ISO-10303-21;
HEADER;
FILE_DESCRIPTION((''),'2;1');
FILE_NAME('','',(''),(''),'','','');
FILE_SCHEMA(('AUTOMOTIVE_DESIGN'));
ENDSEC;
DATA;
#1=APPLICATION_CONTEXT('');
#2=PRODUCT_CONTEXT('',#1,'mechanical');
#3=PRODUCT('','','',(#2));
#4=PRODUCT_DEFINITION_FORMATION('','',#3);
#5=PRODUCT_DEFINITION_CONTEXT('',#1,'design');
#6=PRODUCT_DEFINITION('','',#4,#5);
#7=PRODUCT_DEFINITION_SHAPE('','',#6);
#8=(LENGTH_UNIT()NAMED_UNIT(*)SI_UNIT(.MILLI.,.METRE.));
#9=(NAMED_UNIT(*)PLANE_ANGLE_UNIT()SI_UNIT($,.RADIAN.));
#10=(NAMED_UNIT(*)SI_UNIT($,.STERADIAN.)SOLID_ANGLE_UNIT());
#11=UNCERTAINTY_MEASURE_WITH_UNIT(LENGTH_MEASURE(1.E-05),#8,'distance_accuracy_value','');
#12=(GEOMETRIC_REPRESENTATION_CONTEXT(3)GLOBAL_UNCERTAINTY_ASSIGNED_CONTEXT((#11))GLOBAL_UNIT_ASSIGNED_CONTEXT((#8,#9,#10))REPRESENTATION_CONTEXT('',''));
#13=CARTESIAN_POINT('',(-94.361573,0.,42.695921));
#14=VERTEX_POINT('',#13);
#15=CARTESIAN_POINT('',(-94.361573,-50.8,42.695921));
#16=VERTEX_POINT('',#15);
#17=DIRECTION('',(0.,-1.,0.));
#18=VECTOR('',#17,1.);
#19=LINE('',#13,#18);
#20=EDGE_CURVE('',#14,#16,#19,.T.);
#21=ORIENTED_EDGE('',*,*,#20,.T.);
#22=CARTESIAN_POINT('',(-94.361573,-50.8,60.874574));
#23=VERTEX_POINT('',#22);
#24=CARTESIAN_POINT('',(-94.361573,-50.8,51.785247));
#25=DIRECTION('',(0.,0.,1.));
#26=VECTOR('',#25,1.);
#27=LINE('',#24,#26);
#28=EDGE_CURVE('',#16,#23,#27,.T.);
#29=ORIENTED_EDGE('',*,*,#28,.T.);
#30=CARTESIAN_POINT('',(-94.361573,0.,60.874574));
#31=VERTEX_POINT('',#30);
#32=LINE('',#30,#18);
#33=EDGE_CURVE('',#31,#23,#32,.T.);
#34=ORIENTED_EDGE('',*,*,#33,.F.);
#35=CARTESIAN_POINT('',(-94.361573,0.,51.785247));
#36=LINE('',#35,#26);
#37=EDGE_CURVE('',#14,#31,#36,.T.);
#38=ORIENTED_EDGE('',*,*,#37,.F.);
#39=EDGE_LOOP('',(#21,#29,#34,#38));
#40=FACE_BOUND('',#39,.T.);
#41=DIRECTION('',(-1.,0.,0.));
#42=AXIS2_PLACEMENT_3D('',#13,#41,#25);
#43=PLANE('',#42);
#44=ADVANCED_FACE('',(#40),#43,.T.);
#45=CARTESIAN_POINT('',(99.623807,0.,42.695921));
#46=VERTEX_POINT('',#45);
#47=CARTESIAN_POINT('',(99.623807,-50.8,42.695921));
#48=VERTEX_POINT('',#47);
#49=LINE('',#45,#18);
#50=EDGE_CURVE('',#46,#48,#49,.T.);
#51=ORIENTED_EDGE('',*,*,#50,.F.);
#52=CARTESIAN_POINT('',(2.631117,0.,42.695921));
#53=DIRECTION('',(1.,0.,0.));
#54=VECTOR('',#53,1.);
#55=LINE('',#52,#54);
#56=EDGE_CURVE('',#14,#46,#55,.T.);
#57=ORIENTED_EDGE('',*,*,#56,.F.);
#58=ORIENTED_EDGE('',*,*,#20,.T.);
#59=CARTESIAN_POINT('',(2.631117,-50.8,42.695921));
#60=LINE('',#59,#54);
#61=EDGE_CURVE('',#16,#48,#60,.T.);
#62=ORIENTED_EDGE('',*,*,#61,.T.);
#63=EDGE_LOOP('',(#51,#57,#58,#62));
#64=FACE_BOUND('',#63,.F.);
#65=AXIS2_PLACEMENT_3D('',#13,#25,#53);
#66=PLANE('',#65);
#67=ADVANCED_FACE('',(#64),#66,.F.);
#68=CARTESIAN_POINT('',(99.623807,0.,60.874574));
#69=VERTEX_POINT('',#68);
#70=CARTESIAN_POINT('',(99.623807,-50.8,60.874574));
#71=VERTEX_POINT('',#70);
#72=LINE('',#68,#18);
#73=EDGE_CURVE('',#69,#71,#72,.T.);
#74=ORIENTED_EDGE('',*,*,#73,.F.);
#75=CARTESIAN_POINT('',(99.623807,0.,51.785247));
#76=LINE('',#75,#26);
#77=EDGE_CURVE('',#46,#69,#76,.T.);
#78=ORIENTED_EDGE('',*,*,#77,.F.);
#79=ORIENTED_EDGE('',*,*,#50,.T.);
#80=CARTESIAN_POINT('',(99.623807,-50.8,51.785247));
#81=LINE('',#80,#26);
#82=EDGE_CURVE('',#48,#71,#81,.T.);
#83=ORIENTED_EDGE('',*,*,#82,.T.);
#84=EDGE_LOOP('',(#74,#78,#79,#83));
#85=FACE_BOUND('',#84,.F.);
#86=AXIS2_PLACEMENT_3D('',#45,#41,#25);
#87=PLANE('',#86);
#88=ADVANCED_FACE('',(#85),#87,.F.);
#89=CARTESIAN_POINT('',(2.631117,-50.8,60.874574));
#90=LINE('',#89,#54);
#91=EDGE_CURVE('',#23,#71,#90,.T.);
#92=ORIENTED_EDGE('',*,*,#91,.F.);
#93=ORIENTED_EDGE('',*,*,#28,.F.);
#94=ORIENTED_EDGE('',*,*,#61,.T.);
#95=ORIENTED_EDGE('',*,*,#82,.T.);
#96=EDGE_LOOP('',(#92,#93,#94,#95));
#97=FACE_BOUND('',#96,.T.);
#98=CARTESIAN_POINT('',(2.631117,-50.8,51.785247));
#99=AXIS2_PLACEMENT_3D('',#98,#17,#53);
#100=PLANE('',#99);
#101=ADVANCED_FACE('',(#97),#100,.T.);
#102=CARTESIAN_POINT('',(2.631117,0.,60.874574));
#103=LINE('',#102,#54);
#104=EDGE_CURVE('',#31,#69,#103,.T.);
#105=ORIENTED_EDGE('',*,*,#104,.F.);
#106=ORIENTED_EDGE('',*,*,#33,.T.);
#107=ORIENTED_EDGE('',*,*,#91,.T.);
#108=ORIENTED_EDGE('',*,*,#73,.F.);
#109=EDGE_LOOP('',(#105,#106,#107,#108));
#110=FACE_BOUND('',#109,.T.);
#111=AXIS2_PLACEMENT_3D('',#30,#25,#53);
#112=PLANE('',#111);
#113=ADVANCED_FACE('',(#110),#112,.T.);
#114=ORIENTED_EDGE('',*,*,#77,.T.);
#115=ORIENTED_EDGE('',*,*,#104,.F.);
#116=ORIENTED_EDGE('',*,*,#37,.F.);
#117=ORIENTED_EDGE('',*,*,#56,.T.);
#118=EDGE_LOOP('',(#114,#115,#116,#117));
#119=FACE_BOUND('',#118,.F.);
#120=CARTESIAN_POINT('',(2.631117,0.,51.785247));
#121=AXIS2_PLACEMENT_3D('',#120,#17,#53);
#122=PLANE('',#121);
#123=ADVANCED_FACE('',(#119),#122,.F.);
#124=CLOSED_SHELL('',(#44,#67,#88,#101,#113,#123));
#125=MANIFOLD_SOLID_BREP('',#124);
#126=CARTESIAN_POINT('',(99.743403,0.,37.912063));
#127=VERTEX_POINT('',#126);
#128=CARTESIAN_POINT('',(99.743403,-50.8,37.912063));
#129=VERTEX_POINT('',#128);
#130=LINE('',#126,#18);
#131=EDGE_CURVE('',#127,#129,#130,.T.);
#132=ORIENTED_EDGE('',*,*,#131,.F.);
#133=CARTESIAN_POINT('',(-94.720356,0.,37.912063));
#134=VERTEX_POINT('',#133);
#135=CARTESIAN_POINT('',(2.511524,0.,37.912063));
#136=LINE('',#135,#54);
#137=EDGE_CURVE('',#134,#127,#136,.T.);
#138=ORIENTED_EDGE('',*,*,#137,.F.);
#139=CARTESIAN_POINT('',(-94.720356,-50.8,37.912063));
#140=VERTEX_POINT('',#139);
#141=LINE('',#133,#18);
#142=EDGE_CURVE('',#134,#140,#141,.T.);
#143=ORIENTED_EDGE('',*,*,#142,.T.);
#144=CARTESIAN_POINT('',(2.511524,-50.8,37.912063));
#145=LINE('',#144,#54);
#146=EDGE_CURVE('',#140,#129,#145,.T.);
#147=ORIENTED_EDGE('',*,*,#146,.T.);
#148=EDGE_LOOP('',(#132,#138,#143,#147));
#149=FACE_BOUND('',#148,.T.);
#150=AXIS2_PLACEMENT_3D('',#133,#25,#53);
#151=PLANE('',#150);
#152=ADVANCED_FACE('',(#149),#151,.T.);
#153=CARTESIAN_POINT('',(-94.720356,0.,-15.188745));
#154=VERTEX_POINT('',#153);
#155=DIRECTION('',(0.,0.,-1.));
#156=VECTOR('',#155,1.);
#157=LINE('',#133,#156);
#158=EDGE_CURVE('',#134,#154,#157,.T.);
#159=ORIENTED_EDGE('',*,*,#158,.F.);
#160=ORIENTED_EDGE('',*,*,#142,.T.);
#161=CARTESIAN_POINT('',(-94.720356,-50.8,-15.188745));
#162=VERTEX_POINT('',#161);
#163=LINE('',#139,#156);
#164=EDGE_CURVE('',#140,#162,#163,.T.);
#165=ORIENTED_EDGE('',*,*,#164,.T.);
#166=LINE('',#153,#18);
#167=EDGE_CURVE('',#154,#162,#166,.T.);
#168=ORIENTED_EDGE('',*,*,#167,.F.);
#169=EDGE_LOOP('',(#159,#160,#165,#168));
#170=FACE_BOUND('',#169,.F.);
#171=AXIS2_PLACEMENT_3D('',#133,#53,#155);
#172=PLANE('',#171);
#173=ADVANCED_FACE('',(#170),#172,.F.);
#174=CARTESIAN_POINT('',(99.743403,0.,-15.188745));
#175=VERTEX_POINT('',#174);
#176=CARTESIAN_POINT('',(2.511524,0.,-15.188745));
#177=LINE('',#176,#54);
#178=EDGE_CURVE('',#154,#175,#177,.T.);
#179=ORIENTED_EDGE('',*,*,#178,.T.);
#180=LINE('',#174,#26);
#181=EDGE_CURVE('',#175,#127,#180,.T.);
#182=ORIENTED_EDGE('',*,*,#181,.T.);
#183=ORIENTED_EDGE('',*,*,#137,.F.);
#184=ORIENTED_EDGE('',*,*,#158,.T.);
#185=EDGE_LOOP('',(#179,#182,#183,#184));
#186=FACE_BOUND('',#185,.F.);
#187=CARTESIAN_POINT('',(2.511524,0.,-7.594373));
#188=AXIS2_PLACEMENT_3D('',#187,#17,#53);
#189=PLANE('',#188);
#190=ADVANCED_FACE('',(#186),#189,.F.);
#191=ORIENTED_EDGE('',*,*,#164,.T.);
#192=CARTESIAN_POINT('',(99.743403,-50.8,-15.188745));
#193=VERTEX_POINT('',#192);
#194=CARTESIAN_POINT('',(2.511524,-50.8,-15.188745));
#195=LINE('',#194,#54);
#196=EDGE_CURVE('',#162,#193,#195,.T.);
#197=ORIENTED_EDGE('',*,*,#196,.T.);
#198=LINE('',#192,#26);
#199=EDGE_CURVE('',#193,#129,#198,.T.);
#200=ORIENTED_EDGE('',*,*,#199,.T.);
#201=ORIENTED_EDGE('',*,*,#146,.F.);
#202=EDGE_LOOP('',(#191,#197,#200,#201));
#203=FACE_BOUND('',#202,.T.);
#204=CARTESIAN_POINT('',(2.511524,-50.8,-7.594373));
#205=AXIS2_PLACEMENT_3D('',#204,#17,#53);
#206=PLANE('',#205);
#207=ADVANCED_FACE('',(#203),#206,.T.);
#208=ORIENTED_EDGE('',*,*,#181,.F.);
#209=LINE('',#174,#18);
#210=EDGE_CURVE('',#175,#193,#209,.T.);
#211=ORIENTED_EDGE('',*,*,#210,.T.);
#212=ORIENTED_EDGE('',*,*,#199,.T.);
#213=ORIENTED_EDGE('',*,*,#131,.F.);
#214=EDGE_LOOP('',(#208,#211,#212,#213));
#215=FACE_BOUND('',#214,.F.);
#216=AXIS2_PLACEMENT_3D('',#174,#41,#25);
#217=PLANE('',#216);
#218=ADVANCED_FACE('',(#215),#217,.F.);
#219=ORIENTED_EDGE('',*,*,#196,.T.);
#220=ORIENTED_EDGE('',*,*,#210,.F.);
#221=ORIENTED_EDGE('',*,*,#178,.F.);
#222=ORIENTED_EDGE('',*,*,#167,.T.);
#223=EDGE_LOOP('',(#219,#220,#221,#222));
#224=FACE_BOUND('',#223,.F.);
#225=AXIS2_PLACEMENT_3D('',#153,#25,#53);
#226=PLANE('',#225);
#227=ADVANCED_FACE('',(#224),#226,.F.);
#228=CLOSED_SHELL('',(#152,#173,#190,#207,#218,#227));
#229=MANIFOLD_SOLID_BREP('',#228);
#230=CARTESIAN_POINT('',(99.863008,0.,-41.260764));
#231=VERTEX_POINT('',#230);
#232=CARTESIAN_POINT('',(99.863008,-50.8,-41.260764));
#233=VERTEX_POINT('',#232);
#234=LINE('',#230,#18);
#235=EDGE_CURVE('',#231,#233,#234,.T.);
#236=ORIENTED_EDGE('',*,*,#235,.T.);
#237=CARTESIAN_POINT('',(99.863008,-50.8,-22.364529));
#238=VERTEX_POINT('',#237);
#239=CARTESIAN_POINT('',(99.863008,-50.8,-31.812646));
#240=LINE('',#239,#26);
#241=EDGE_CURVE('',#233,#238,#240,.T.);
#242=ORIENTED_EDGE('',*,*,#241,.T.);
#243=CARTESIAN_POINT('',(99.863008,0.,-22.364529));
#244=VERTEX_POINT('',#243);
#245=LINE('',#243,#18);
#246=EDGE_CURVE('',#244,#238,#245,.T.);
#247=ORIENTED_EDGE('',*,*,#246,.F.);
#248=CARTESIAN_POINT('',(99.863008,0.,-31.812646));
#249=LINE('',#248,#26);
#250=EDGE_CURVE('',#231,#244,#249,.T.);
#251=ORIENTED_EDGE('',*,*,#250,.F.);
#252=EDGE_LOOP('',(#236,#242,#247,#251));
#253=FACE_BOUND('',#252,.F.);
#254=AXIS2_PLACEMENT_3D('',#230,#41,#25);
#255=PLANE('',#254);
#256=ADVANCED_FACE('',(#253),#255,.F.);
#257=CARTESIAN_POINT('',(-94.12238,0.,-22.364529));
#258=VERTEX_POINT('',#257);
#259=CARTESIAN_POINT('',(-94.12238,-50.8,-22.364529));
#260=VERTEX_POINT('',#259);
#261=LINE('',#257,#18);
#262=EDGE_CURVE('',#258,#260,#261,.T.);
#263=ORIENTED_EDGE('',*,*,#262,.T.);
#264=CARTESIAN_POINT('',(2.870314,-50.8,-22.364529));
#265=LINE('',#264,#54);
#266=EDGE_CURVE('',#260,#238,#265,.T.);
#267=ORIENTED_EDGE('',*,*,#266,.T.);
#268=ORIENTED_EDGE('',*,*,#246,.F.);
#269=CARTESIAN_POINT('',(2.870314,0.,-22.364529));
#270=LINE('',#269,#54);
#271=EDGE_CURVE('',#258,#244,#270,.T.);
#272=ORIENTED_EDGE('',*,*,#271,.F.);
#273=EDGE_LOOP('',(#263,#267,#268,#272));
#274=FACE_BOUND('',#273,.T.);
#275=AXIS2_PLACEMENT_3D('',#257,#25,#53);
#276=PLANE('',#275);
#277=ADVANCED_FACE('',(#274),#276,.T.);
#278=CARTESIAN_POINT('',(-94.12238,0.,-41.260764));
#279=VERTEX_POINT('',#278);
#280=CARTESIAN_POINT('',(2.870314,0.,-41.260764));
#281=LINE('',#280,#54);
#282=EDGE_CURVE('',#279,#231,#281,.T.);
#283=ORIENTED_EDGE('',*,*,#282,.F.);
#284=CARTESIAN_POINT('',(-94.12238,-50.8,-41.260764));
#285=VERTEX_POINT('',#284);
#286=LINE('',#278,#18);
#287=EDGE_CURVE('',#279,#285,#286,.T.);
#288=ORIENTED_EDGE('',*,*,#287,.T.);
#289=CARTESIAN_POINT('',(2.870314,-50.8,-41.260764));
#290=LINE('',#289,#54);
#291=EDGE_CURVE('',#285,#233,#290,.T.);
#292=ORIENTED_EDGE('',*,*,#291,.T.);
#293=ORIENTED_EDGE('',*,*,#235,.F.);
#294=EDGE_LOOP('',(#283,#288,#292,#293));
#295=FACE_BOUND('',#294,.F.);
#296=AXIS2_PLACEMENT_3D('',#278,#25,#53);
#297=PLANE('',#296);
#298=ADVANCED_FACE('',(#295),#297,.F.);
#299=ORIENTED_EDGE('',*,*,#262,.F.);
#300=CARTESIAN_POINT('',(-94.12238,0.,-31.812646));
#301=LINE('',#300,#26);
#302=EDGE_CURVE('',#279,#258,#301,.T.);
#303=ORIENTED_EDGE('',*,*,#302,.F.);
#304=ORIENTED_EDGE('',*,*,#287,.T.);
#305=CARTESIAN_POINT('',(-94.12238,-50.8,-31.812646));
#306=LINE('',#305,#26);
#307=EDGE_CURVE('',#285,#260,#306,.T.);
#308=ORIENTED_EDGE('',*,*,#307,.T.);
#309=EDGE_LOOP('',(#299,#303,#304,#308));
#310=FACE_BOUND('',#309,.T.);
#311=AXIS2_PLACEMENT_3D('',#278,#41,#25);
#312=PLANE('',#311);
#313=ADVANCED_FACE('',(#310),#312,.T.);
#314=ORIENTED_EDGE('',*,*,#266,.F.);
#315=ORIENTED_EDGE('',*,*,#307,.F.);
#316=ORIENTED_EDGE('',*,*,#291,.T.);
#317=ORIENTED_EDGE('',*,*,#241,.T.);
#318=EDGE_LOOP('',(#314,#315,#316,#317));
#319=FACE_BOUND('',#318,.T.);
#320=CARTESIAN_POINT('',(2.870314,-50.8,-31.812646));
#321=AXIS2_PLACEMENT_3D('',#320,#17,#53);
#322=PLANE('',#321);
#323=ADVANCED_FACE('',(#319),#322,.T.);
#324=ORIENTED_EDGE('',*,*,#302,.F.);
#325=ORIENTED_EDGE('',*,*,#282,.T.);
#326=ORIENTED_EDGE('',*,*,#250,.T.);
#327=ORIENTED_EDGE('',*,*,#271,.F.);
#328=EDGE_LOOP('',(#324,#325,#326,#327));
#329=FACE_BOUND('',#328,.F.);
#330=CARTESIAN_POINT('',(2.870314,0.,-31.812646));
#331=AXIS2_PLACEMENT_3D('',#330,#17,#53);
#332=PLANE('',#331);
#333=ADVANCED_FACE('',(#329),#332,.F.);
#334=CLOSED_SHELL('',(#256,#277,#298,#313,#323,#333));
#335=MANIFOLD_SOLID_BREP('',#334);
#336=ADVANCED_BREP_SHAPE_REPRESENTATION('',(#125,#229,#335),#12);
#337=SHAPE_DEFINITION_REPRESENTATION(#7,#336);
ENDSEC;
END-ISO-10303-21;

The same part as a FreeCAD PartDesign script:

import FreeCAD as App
import Part
import Sketcher
Q = App.Units.Quantity


def add_polygon(sketch, points):
    """Adds a closed chain of lines whose ends are joined by coincident constraints."""
    first, n = sketch.GeometryCount, len(points)
    for a, b in zip(points, points[1:] + points[:1]):
        sketch.addGeometry(Part.LineSegment(App.Vector(*a, 0), App.Vector(*b, 0)), False)
    for i in range(n):
        sketch.addConstraint(Sketcher.Constraint("Coincident", first + i, 2, first + (i + 1) % n, 1))

doc = App.newDocument("Part")
body = doc.addObject("PartDesign::Body", "Body")

# Sketch on XZ plane
sketch1 = doc.addObject("Sketcher::SketchObject", "Sketch")
body.addObject(sketch1)
sketch1.AttachmentSupport = (doc.XZ_Plane, [""])
sketch1.MapMode = "FlatFace"
add_polygon(sketch1, [(-94.720356, -15.188745), (99.743403, -15.188745), (99.743403, 37.912063), (-94.720356, 37.912063)])  # lines 0-3
sketch1.addConstraint([
    Sketcher.Constraint("Horizontal", 0),
    Sketcher.Constraint("Vertical", 1),
    Sketcher.Constraint("Horizontal", 2),
    Sketcher.Constraint("Vertical", 3),
    Sketcher.Constraint("DistanceX", 0, 1, 0, 2, 194.46376),
    Sketcher.Constraint("DistanceY", 1, 1, 1, 2, 53.100809),
    Sketcher.Constraint("DistanceX", -1, 1, 0, 2, 99.743403),
    Sketcher.Constraint("DistanceY", 0, 2, -1, 1, 15.188745),
])
pad1 = doc.addObject("PartDesign::Pad", "Pad")
body.addObject(pad1)
pad1.Profile = sketch1
pad1.Length = Q("2 in")
body2 = doc.addObject("PartDesign::Body", "Body001")

# Sketch on XZ plane
sketch2 = doc.addObject("Sketcher::SketchObject", "Sketch001")
body2.addObject(sketch2)
sketch2.AttachmentSupport = (doc.getObject("XZ_Plane001"), [""])
sketch2.MapMode = "FlatFace"
add_polygon(sketch2, [(-94.361573, 60.874574), (-94.361573, 42.695921), (99.623807, 42.695921), (99.623807, 60.874574)])  # lines 0-3
sketch2.addConstraint([
    Sketcher.Constraint("Vertical", 0),
    Sketcher.Constraint("Horizontal", 1),
    Sketcher.Constraint("Vertical", 2),
    Sketcher.Constraint("Horizontal", 3),
    Sketcher.Constraint("DistanceX", 1, 1, 1, 2, 193.98538),
    Sketcher.Constraint("DistanceY", 0, 2, 0, 1, 18.178653),
    Sketcher.Constraint("DistanceY", -1, 1, 0, 2, 42.695921),
    Sketcher.Constraint("DistanceX", 0, 2, -1, 1, 94.361573),
])
pad2 = doc.addObject("PartDesign::Pad", "Pad001")
body2.addObject(pad2)
pad2.Profile = sketch2
pad2.Length = Q("2 in")
body3 = doc.addObject("PartDesign::Body", "Body002")

# Sketch on XZ plane
sketch3 = doc.addObject("Sketcher::SketchObject", "Sketch002")
body3.addObject(sketch3)
sketch3.AttachmentSupport = (doc.getObject("XZ_Plane002"), [""])
sketch3.MapMode = "FlatFace"
add_polygon(sketch3, [(-94.12238, -22.364529), (-94.12238, -41.260764), (99.863008, -41.260764), (99.863008, -22.364529)])  # lines 0-3
sketch3.addConstraint([
    Sketcher.Constraint("Vertical", 0),
    Sketcher.Constraint("Horizontal", 1),
    Sketcher.Constraint("Vertical", 2),
    Sketcher.Constraint("Horizontal", 3),
    Sketcher.Constraint("DistanceX", 1, 1, 1, 2, 193.985388),
    Sketcher.Constraint("DistanceY", 0, 2, 0, 1, 18.896235),
    Sketcher.Constraint("DistanceX", 0, 2, -1, 1, 94.12238),
    Sketcher.Constraint("DistanceY", 2, 2, -1, 1, 22.364529),
])
pad3 = doc.addObject("PartDesign::Pad", "Pad002")
body3.addObject(pad3)
pad3.Profile = sketch3
pad3.Length = Q("2 in")

doc.recompute()
